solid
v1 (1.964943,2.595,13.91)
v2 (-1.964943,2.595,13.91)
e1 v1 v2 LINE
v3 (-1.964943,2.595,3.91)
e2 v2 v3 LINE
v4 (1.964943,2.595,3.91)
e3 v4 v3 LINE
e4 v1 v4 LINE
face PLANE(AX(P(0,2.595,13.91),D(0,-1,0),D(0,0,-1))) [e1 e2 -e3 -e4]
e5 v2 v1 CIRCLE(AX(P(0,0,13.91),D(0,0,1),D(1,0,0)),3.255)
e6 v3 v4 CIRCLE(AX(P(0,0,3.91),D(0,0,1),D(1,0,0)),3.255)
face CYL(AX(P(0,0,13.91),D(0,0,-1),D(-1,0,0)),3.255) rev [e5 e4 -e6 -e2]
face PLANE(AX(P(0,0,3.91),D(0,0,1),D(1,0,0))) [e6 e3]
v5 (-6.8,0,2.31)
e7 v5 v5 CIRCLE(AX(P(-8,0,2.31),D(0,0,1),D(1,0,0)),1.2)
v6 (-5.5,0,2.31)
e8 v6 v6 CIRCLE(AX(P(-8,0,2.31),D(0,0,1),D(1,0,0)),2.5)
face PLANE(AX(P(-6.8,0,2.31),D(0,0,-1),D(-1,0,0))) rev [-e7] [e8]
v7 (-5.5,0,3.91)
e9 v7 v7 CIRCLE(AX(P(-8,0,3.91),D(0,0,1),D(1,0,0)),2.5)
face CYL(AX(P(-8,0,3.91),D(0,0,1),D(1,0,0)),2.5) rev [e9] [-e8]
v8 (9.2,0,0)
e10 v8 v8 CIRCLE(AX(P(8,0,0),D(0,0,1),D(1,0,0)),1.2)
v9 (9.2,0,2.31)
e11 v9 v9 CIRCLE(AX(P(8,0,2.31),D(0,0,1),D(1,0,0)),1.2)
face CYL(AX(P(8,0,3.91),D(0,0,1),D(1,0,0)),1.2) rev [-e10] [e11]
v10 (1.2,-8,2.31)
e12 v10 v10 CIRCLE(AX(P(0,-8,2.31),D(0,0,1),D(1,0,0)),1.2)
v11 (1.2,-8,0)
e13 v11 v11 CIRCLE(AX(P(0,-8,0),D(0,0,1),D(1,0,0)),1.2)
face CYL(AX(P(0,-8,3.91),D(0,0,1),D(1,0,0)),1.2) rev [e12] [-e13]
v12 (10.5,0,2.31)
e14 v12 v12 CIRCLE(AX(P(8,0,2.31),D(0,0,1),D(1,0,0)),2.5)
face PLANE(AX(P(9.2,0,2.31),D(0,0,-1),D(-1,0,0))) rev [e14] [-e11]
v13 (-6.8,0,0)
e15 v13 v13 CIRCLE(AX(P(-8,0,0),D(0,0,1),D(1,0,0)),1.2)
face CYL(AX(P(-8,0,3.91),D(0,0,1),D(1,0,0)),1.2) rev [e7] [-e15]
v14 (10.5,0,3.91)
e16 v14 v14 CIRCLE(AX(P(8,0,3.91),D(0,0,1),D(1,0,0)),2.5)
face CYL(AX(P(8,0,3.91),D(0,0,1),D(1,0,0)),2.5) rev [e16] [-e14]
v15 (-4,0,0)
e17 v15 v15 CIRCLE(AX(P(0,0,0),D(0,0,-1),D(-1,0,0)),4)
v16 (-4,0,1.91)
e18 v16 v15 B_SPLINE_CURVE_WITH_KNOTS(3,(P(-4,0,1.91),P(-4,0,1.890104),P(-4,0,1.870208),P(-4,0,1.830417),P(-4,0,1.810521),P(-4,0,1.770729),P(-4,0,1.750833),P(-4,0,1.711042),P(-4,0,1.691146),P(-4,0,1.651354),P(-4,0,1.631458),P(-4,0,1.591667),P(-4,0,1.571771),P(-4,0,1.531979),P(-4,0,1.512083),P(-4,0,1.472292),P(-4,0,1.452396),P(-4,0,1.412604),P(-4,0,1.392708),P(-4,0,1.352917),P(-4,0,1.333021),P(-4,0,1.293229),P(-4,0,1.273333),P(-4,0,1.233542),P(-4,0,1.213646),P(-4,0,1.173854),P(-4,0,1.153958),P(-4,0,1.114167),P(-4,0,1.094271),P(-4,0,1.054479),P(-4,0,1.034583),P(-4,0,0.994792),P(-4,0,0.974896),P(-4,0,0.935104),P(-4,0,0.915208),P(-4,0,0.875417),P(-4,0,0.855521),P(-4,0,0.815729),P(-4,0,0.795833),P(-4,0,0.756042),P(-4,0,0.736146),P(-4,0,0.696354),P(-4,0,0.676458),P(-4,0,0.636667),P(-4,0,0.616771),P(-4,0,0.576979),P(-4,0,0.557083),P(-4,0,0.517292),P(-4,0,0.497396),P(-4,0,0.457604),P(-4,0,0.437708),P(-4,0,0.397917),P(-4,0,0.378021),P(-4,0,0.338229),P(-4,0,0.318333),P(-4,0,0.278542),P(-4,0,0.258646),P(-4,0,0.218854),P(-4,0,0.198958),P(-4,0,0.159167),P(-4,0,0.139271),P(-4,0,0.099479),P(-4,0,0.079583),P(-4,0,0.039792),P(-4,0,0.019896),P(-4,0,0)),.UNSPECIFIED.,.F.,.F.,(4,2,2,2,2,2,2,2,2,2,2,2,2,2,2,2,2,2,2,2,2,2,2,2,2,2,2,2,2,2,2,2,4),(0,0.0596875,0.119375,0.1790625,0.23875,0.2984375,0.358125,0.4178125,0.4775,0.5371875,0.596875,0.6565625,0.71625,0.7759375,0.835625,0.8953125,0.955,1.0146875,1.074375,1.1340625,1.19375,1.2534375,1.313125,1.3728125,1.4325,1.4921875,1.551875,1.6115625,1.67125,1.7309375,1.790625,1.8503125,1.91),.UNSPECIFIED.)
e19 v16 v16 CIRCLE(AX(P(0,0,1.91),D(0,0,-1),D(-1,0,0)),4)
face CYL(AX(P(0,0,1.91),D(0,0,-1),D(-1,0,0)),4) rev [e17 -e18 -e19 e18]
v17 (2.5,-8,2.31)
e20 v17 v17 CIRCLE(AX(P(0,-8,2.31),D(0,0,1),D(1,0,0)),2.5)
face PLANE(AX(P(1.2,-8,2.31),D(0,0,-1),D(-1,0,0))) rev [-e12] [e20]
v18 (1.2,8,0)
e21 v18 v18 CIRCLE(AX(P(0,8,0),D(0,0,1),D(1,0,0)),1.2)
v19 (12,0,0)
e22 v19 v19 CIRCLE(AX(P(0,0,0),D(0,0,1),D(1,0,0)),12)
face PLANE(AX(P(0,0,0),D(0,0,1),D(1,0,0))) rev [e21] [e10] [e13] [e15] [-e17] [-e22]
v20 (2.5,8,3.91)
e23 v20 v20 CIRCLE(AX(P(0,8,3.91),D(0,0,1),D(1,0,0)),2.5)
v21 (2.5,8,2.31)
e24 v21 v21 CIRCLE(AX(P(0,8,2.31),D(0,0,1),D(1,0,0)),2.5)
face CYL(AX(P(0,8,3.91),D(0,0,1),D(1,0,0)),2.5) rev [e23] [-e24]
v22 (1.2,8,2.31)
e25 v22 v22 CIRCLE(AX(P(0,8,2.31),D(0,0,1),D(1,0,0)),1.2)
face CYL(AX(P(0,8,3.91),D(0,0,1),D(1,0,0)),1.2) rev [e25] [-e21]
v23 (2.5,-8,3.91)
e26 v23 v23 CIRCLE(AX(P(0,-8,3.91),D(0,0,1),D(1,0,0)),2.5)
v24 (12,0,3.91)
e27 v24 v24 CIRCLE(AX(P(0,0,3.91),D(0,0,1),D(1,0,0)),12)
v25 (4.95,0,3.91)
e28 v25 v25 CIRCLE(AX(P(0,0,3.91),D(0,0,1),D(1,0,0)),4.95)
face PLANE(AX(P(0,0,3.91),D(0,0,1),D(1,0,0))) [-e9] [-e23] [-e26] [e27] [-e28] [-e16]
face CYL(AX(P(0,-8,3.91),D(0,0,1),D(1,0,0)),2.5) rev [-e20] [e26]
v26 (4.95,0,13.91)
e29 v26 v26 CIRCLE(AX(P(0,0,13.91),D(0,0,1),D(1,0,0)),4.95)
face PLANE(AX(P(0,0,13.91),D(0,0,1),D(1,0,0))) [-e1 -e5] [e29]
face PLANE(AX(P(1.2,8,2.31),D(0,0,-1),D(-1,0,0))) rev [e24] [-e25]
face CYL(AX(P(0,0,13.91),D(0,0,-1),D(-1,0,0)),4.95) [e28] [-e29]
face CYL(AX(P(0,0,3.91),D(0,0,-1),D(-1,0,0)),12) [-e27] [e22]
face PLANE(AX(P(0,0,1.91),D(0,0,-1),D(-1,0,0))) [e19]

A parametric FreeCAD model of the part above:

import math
import FreeCAD as App
import Part
import Sketcher
from FreeCAD import Vector

doc = App.newDocument("Part")
body = doc.addObject("PartDesign::Body", "Body")

sketch1 = body.newObject("Sketcher::SketchObject", "Sketch")
sketch1.AttachmentSupport = (doc.getObject("XY_Plane"), [""])
sketch1.MapMode = "FlatFace"
sketch1.addGeometry(Part.Circle(Vector(0, 0, 0), Vector(0, 0, 1), 12), False)
sketch1.addConstraint([
    Sketcher.Constraint("Coincident", 0, 3, -1, 1),
    Sketcher.Constraint("Diameter", 0, 24.0),
])
pad1 = body.newObject("PartDesign::Pad", "Pad")
pad1.Profile = sketch1
pad1.Length = 3.91

sketch2 = body.newObject("Sketcher::SketchObject", "Sketch001")
sketch2.AttachmentSupport = (doc.getObject("XY_Plane"), [""])
sketch2.MapMode = "FlatFace"
sketch2.addGeometry(Part.Circle(Vector(0, 0, 0), Vector(0, 0, 1), 4), False)
sketch2.addConstraint([
    Sketcher.Constraint("Coincident", 0, 3, -1, 1),
    Sketcher.Constraint("Diameter", 0, 8.0),
])
pocket1 = body.newObject("PartDesign::Pocket", "Pocket")
pocket1.Profile = sketch2
pocket1.Length = 1.91
pocket1.Reversed = True

sketch3 = body.newObject("Sketcher::SketchObject", "Sketch002")
sketch3.AttachmentSupport = (doc.getObject("XY_Plane"), [""])
sketch3.MapMode = "FlatFace"
sketch3.AttachmentOffset = App.Placement(Vector(0, 0, 3.91), App.Rotation())
sketch3.addGeometry([
    Part.Circle(Vector(0, 0, 0), Vector(0, 0, 1), 5),
    Part.LineSegment(Vector(-2, 2.6, 0), Vector(2, 2.6, 0)),
    Part.ArcOfCircle(Part.Circle(Vector(0, 0, 0), Vector(0, 0, 1), 3.3), math.radians(127), math.radians(413)),
], False)
sketch3.addConstraint([
    Sketcher.Constraint("Coincident", 1, 1, 2, 1),
    Sketcher.Constraint("Coincident", 2, 2, 1, 2),
    Sketcher.Constraint("Horizontal", 1),
    Sketcher.Constraint("Coincident", 0, 3, -1, 1),
    Sketcher.Constraint("Coincident", 2, 3, -1, 1),
    Sketcher.Constraint("Diameter", 0, 9.9),
    Sketcher.Constraint("Radius", 2, 3.255),
    Sketcher.Constraint("DistanceY", -1, 1, 1, 1, 2.595),
])
pad2 = body.newObject("PartDesign::Pad", "Pad001")
pad2.Profile = sketch3
pad2.Length = 10

sketch4 = body.newObject("Sketcher::SketchObject", "Sketch003")
sketch4.AttachmentSupport = (doc.getObject("XY_Plane"), [""])
sketch4.MapMode = "FlatFace"
sketch4.AttachmentOffset = App.Placement(Vector(0, 0, 3.91), App.Rotation())
sketch4.addGeometry(Part.Circle(Vector(0, 8, 0), Vector(0, 0, 1), 1.2), False)
sketch4.addConstraint([
    Sketcher.Constraint("PointOnObject", 0, 3, -2),
    Sketcher.Constraint("Diameter", 0, 2.4),
    Sketcher.Constraint("DistanceY", -1, 1, 0, 3, 8.0),
])
doc.recompute()
hole = body.newObject("PartDesign::Hole", "Hole")
hole.Profile = sketch4
hole.ThreadType = "None"
hole.Diameter = 2.4
hole.DepthType = "ThroughAll"
hole.HoleCutType = "Counterbore"
hole.HoleCutDiameter = 5
hole.HoleCutDepth = 1.6
doc.recompute()

polarpattern = body.newObject("PartDesign::PolarPattern", "PolarPattern")
polarpattern.Originals = [hole]
polarpattern.Axis = (doc.getObject("Z_Axis"), [""])
polarpattern.Angle = 360
polarpattern.Occurrences = 4
body.Tip = polarpattern

doc.recompute()
